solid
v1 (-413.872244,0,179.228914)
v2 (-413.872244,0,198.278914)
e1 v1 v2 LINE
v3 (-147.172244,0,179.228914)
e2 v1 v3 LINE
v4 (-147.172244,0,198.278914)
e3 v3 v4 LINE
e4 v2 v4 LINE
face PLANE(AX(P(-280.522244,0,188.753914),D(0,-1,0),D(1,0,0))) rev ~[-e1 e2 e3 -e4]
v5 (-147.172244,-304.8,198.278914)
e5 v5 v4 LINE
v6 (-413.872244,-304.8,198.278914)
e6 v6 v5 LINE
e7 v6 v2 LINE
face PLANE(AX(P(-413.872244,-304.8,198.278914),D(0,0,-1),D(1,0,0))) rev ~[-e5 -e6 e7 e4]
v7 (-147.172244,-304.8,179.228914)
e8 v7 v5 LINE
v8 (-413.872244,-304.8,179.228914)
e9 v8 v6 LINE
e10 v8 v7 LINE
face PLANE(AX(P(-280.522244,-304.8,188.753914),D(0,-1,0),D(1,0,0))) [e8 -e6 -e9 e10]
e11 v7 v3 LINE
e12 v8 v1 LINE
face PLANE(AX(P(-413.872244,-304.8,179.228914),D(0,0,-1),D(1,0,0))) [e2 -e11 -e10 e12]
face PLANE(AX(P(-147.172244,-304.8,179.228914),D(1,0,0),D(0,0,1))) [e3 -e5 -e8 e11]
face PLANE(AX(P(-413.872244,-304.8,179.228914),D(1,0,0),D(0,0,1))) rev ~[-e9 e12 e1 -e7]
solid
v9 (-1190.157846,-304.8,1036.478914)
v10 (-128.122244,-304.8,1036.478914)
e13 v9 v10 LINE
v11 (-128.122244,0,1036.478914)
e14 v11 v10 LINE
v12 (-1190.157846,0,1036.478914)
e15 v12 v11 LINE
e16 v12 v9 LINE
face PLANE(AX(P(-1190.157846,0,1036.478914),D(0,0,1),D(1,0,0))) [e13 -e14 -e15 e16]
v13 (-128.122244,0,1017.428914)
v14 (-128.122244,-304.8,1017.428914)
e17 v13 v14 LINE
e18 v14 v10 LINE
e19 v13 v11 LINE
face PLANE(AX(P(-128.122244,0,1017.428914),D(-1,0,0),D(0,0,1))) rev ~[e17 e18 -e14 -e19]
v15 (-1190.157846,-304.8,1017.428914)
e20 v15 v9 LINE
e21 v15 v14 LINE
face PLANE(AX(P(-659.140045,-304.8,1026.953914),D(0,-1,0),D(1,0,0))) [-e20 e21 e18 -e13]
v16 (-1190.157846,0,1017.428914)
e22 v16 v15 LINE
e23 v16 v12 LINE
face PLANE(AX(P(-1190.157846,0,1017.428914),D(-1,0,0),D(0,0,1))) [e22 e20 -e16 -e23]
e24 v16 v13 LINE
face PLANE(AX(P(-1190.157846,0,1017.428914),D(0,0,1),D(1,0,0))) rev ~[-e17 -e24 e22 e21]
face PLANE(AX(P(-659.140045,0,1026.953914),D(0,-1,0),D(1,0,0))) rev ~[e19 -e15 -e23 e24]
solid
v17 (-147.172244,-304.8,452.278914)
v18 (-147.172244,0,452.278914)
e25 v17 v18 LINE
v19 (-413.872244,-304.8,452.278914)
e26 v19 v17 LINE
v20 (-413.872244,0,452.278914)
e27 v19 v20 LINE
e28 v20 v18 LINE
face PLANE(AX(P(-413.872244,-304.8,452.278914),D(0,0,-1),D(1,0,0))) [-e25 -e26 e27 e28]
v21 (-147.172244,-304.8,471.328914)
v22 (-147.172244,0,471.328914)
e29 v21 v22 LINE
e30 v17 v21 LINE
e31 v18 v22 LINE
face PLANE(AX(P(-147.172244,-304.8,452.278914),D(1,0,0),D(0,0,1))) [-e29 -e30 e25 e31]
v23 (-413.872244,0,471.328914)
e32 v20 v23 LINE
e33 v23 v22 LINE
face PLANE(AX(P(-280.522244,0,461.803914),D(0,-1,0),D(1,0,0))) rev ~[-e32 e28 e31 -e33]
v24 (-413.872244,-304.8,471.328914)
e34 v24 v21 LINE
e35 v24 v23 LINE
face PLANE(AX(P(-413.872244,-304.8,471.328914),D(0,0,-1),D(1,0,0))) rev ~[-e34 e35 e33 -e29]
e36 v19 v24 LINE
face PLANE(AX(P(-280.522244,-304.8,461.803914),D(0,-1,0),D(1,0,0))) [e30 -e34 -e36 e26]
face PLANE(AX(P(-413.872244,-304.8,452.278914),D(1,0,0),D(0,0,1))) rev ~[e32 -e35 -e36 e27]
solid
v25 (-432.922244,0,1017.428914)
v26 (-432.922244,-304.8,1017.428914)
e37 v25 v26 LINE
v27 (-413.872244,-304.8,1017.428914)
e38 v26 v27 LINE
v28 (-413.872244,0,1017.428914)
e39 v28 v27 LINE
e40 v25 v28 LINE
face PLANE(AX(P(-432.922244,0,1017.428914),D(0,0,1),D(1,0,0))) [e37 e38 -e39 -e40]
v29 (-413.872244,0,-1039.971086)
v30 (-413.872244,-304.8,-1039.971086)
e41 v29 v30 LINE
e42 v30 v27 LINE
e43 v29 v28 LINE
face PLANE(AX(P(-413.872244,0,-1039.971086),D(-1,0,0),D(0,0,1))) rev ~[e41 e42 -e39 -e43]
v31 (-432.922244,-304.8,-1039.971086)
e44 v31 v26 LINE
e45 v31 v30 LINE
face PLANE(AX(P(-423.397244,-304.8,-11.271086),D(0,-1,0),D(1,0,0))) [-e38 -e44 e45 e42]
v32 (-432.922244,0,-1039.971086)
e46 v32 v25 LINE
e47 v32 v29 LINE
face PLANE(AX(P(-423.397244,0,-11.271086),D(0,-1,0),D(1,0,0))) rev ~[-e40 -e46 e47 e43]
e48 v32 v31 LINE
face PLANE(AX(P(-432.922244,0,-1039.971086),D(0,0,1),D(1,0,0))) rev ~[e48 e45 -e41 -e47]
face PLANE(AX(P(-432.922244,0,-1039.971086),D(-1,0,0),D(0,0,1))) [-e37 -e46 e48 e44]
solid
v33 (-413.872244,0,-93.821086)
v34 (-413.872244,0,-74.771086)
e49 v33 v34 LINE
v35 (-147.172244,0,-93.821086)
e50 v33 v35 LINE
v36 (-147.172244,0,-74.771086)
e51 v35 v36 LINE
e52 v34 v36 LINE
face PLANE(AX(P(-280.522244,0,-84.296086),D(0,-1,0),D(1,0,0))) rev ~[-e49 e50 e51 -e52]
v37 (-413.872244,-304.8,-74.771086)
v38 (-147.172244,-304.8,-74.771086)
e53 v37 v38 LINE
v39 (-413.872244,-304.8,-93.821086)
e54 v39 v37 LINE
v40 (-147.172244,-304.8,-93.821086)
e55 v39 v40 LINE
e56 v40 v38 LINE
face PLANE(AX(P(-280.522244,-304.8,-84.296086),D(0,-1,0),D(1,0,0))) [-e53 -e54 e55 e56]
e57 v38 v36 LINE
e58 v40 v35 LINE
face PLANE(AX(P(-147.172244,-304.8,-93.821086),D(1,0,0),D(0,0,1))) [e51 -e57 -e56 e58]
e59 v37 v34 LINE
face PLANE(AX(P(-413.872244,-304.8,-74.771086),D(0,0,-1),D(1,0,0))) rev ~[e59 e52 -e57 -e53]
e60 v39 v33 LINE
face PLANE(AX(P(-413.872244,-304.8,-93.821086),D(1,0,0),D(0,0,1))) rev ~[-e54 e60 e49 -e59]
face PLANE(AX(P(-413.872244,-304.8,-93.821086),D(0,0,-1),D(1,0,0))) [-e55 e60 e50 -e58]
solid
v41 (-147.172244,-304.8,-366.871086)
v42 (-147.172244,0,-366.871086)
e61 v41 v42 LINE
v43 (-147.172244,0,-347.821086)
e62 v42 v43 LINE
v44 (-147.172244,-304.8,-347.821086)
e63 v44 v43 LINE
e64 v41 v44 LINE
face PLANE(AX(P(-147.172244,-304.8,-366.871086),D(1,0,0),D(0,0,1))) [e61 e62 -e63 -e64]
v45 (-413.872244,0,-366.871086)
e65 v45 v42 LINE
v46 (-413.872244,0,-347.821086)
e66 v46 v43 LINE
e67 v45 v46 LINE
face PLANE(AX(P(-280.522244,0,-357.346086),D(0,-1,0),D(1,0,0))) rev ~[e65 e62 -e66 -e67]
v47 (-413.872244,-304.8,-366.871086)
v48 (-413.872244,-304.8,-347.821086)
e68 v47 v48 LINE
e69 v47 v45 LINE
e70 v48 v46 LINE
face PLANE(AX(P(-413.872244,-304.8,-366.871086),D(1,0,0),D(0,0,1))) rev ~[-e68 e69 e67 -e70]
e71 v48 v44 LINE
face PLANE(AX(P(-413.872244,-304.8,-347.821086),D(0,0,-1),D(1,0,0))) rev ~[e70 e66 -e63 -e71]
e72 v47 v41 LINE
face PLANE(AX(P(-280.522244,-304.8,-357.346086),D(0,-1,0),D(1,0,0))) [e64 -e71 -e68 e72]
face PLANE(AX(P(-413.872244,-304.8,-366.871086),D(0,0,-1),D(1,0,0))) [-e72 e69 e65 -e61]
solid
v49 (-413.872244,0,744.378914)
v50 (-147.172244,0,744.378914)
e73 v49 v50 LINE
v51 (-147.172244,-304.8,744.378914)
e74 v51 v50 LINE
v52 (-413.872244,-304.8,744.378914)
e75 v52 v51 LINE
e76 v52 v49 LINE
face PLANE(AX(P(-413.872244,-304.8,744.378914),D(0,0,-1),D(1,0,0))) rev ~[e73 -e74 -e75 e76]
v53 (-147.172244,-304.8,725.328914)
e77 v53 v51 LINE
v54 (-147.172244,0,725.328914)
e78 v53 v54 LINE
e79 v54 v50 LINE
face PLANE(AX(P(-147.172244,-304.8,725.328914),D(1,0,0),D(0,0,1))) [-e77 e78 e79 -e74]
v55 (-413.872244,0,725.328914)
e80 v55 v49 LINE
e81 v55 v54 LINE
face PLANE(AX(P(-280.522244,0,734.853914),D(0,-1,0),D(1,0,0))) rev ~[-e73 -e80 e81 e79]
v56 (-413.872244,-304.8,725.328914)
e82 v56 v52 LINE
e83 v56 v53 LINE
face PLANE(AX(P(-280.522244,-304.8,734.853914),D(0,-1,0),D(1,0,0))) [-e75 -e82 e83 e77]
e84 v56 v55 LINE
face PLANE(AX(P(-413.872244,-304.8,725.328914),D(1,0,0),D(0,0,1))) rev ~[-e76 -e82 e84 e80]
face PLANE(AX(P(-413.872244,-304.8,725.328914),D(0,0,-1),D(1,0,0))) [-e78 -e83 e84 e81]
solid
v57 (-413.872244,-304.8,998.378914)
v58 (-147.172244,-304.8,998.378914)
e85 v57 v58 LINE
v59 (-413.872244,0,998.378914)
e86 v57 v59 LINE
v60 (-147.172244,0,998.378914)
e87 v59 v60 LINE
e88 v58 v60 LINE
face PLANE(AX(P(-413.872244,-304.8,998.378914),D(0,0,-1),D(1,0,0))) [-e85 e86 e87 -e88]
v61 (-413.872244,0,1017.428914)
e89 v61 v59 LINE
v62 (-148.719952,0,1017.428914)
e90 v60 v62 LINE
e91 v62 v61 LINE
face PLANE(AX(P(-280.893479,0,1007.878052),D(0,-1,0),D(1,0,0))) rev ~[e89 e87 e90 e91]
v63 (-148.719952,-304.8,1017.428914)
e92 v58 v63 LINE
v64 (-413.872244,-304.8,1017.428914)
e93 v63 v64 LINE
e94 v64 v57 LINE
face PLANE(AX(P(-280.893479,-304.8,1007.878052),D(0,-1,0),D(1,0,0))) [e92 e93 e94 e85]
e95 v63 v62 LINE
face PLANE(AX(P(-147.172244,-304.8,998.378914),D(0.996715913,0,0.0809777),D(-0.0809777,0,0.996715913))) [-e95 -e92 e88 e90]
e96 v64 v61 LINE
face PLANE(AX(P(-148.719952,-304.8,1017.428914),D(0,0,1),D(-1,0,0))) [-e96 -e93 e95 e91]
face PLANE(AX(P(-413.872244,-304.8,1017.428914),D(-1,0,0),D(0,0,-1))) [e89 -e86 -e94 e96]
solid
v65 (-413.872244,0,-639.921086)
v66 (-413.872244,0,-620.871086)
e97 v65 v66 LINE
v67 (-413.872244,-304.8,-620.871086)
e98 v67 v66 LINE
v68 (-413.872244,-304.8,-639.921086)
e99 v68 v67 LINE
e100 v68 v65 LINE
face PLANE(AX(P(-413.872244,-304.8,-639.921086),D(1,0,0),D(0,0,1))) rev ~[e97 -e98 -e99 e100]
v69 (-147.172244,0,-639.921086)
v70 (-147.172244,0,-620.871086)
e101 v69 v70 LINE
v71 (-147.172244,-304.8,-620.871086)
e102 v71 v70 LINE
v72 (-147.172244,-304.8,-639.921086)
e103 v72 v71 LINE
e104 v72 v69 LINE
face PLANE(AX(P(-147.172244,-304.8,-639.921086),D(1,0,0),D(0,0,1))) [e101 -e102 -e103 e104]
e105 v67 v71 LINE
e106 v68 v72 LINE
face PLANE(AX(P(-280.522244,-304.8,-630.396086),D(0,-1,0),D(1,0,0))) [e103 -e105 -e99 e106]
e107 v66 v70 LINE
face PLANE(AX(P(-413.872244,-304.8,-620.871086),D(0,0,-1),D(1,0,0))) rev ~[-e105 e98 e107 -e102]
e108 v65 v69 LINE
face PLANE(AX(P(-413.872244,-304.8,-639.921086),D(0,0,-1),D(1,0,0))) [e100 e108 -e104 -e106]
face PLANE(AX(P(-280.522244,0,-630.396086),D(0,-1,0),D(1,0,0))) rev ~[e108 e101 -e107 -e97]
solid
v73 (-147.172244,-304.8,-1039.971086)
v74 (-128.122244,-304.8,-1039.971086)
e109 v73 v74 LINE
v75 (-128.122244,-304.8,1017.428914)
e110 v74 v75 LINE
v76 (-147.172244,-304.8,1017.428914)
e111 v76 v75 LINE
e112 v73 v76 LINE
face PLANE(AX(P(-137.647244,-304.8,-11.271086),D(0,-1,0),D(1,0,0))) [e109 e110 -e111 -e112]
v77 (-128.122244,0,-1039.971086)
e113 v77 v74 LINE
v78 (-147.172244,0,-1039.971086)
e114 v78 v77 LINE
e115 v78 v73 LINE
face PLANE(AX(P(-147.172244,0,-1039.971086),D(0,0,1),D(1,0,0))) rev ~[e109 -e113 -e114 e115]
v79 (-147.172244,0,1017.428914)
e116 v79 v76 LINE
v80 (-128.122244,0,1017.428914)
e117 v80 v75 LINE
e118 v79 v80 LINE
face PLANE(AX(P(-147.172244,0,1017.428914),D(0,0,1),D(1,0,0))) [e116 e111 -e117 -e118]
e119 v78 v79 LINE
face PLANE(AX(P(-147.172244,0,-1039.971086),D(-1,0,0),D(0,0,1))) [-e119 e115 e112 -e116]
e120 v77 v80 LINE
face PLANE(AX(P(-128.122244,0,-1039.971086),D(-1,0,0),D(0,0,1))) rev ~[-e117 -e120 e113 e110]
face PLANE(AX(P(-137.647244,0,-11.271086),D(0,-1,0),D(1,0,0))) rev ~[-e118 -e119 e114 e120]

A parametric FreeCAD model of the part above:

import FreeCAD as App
import Part
import Sketcher
Q = App.Units.Quantity


def add_polygon(sketch, points):
    """Adds a closed chain of lines whose ends are joined by coincident constraints."""
    first, n = sketch.GeometryCount, len(points)
    for a, b in zip(points, points[1:] + points[:1]):
        sketch.addGeometry(Part.LineSegment(App.Vector(*a, 0), App.Vector(*b, 0)), False)
    for i in range(n):
        sketch.addConstraint(Sketcher.Constraint("Coincident", first + i, 2, first + (i + 1) % n, 1))

doc = App.newDocument("Part")
body = doc.addObject("PartDesign::Body", "Body")
body.AllowCompound = True

sketch1 = body.newObject("Sketcher::SketchObject", "Sketch")
sketch1.AttachmentSupport = (doc.getObject("XZ_Plane"), [""])
sketch1.MapMode = "FlatFace"
add_polygon(sketch1, [(-433, 1017), (-433, -1040), (-414, -1040), (-414, 1017)])
add_polygon(sketch1, [(-147, 1017), (-147, -1040), (-128, -1040), (-128, 1017)])
sketch1.addConstraint(Sketcher.Constraint("Vertical", 0))
sketch1.addConstraint(Sketcher.Constraint("Horizontal", 1))
sketch1.addConstraint(Sketcher.Constraint("Vertical", 2))
sketch1.addConstraint(Sketcher.Constraint("Horizontal", 3))
sketch1.addConstraint(Sketcher.Constraint("Vertical", 4))
sketch1.addConstraint(Sketcher.Constraint("Horizontal", 5))
sketch1.addConstraint(Sketcher.Constraint("Vertical", 6))
sketch1.addConstraint(Sketcher.Constraint("Horizontal", 7))
sketch1.addConstraint(Sketcher.Constraint("Horizontal", 1, 2, 4, 2))
sketch1.addConstraint(Sketcher.Constraint("Horizontal", 3, 2, 6, 2))
sketch1.addConstraint(Sketcher.Constraint("Equal", 3, 5))
sketch1.addConstraint(Sketcher.Constraint("DistanceY", 0, 2, 0, 1, Q("81 in")))
sketch1.addConstraint(Sketcher.Constraint("DistanceX", 0, 2, 5, 2, Q("12 in")))
sketch1.addConstraint(Sketcher.Constraint("DistanceX", 1, 1, 1, 2, Q("0.75 in")))
sketch1.addConstraint(Sketcher.Constraint("DistanceX", 0, 2, -1, 1, Q("432.922244 mm")))
sketch1.addConstraint(Sketcher.Constraint("DistanceY", 0, 2, -1, 1, Q("1039.971086 mm")))
pad1 = body.newObject("PartDesign::Pad", "Pad")
pad1.Profile = sketch1
pad1.Length = Q("12 in")
body2 = doc.addObject("PartDesign::Body", "Body001")
body2.AllowCompound = True

sketch2 = body2.newObject("Sketcher::SketchObject", "Sketch001")
sketch2.AttachmentSupport = (doc.getObject("XZ_Plane001"), [""])
sketch2.MapMode = "FlatFace"
sketch2.AttachmentOffset = App.Placement(App.Vector(0, 0, 12 * 25.4), App.Rotation())
add_polygon(sketch2, [(-414, -621), (-414, -640), (-147, -640), (-147, -621)])
add_polygon(sketch2, [(-414, -348), (-414, -367), (-147, -367), (-147, -348)])
add_polygon(sketch2, [(-414, -75), (-414, -94), (-147, -94), (-147, -75)])
add_polygon(sketch2, [(-414, 198), (-414, 179), (-147, 179), (-147, 198)])
add_polygon(sketch2, [(-414, 471), (-414, 452), (-147, 452), (-147, 471)])
add_polygon(sketch2, [(-414, 744), (-414, 725), (-147, 725), (-147, 744)])
add_polygon(sketch2, [(-149, 1017), (-414, 1017), (-414, 998), (-147, 998)])
sketch2.addConstraint(Sketcher.Constraint("Vertical", 0))
sketch2.addConstraint(Sketcher.Constraint("Horizontal", 1))
sketch2.addConstraint(Sketcher.Constraint("Vertical", 2))
sketch2.addConstraint(Sketcher.Constraint("Horizontal", 3))
sketch2.addConstraint(Sketcher.Constraint("Vertical", 4))
sketch2.addConstraint(Sketcher.Constraint("Horizontal", 5))
sketch2.addConstraint(Sketcher.Constraint("Vertical", 6))
sketch2.addConstraint(Sketcher.Constraint("Horizontal", 7))
sketch2.addConstraint(Sketcher.Constraint("Vertical", 8))
sketch2.addConstraint(Sketcher.Constraint("Horizontal", 9))
sketch2.addConstraint(Sketcher.Constraint("Vertical", 10))
sketch2.addConstraint(Sketcher.Constraint("Horizontal", 11))
sketch2.addConstraint(Sketcher.Constraint("Vertical", 12))
sketch2.addConstraint(Sketcher.Constraint("Horizontal", 13))
sketch2.addConstraint(Sketcher.Constraint("Vertical", 14))
sketch2.addConstraint(Sketcher.Constraint("Horizontal", 15))
sketch2.addConstraint(Sketcher.Constraint("Vertical", 16))
sketch2.addConstraint(Sketcher.Constraint("Horizontal", 17))
sketch2.addConstraint(Sketcher.Constraint("Vertical", 18))
sketch2.addConstraint(Sketcher.Constraint("Horizontal", 19))
sketch2.addConstraint(Sketcher.Constraint("Vertical", 20))
sketch2.addConstraint(Sketcher.Constraint("Horizontal", 21))
sketch2.addConstraint(Sketcher.Constraint("Vertical", 22))
sketch2.addConstraint(Sketcher.Constraint("Horizontal", 23))
sketch2.addConstraint(Sketcher.Constraint("Horizontal", 24))
sketch2.addConstraint(Sketcher.Constraint("Vertical", 25))
sketch2.addConstraint(Sketcher.Constraint("Horizontal", 26))
sketch2.addConstraint(Sketcher.Constraint("Vertical", 3, 2, 4, 2))
sketch2.addConstraint(Sketcher.Constraint("Vertical", 2, 2, 5, 2))
sketch2.addConstraint(Sketcher.Constraint("Vertical", 7, 2, 8, 2))
sketch2.addConstraint(Sketcher.Constraint("Vertical", 6, 2, 9, 2))
sketch2.addConstraint(Sketcher.Constraint("Vertical", 11, 2, 12, 2))
sketch2.addConstraint(Sketcher.Constraint("Vertical", 10, 2, 13, 2))
sketch2.addConstraint(Sketcher.Constraint("Vertical", 15, 2, 16, 2))
sketch2.addConstraint(Sketcher.Constraint("Vertical", 14, 2, 17, 2))
sketch2.addConstraint(Sketcher.Constraint("Vertical", 19, 2, 20, 2))
sketch2.addConstraint(Sketcher.Constraint("Vertical", 18, 2, 21, 2))
sketch2.addConstraint(Sketcher.Constraint("Vertical", 23, 2, 24, 2))
sketch2.addConstraint(Sketcher.Constraint("Vertical", 22, 2, 26, 2))
sketch2.addConstraint(Sketcher.Constraint("Equal", 2, 4))
sketch2.addConstraint(Sketcher.Constraint("Equal", 6, 8))
sketch2.addConstraint(Sketcher.Constraint("Equal", 10, 12))
sketch2.addConstraint(Sketcher.Constraint("Equal", 14, 16))
sketch2.addConstraint(Sketcher.Constraint("Equal", 18, 20))
sketch2.addConstraint(Sketcher.Constraint("Equal", 22, 25))
sketch2.addConstraint(Sketcher.Constraint("DistanceX", 1, 1, 1, 2, Q("10.5 in")))
sketch2.addConstraint(Sketcher.Constraint("DistanceY", 3, 2, 4, 2, Q("10 in")))
sketch2.addConstraint(Sketcher.Constraint("DistanceY", 7, 2, 8, 2, Q("10 in")))
sketch2.addConstraint(Sketcher.Constraint("DistanceY", 11, 2, 12, 2, Q("10 in")))
sketch2.addConstraint(Sketcher.Constraint("DistanceY", 15, 2, 16, 2, Q("10 in")))
sketch2.addConstraint(Sketcher.Constraint("DistanceY", 19, 2, 20, 2, Q("10 in")))
sketch2.addConstraint(Sketcher.Constraint("DistanceY", 23, 2, 25, 2, Q("10 in")))
sketch2.addConstraint(Sketcher.Constraint("DistanceY", 0, 2, 0, 1, Q("0.75 in")))
sketch2.addConstraint(Sketcher.Constraint("DistanceX", 24, 2, 24, 1, Q("265.152292 mm")))
sketch2.addConstraint(Sketcher.Constraint("DistanceX", 27, 2, -1, 1, Q("148.719952 mm")))
sketch2.addConstraint(Sketcher.Constraint("DistanceY", 0, 2, -1, 1, Q("639.921086 mm")))
pad2 = body2.newObject("PartDesign::Pad", "Pad001")
pad2.Profile = sketch2
pad2.Length = Q("12 in")
pad2.Reversed = True
body3 = doc.addObject("PartDesign::Body", "Body002")

sketch3 = body3.newObject("Sketcher::SketchObject", "Sketch002")
sketch3.AttachmentSupport = (doc.getObject("XZ_Plane002"), [""])
sketch3.MapMode = "FlatFace"
add_polygon(sketch3, [(-1190, 1036), (-1190, 1017), (-128, 1017), (-128, 1036)])
sketch3.addConstraint(Sketcher.Constraint("Vertical", 0))
sketch3.addConstraint(Sketcher.Constraint("Horizontal", 1))
sketch3.addConstraint(Sketcher.Constraint("Vertical", 2))
sketch3.addConstraint(Sketcher.Constraint("Horizontal", 3))
sketch3.addConstraint(Sketcher.Constraint("DistanceY", 0, 2, 0, 1, Q("0.75 in")))
sketch3.addConstraint(Sketcher.Constraint("DistanceX", 1, 1, 1, 2, Q("1062.035602 mm")))
sketch3.addConstraint(Sketcher.Constraint("DistanceX", 0, 2, -1, 1, Q("1190.157846 mm")))
sketch3.addConstraint(Sketcher.Constraint("DistanceY", -1, 1, 0, 2, Q("1017.428914 mm")))
pad3 = body3.newObject("PartDesign::Pad", "Pad002")
pad3.Profile = sketch3
pad3.Length = Q("12 in")

doc.recompute()
